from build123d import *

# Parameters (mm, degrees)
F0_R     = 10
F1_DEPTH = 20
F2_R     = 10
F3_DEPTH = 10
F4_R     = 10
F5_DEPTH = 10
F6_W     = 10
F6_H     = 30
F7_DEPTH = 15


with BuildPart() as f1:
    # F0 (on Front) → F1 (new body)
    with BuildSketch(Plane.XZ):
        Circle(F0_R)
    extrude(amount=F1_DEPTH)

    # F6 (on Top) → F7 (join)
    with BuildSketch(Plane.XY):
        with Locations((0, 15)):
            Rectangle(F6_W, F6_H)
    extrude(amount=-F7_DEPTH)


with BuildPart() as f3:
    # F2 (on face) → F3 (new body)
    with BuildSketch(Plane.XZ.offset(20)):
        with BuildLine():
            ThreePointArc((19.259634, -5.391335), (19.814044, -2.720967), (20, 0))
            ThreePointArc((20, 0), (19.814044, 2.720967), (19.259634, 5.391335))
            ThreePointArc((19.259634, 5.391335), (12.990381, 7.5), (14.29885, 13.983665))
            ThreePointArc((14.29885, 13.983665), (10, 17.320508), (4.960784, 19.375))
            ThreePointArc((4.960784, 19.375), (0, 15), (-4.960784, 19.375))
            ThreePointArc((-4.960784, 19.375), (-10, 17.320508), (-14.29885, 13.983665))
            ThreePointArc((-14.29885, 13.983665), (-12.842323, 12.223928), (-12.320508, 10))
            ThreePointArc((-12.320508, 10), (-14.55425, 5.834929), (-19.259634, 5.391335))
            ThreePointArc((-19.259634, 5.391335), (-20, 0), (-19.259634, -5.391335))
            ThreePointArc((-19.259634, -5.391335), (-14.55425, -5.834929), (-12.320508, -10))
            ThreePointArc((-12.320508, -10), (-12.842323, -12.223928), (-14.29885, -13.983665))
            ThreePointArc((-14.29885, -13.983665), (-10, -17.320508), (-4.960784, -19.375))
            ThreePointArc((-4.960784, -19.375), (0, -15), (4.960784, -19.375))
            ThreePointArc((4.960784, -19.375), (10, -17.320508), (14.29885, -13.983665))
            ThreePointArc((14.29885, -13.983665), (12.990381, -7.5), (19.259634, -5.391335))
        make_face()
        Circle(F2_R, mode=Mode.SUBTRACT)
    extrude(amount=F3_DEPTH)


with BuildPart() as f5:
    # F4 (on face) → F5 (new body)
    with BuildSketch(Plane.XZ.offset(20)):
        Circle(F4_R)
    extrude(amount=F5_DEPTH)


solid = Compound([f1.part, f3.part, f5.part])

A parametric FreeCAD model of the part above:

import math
import FreeCAD as App
import Part
import Sketcher

V = App.Vector
Q = App.Units.Quantity


def add_polygon(sketch, points):
    """Adds a closed chain of lines whose ends are joined by coincident constraints."""
    first, n = sketch.GeometryCount, len(points)
    for a, b in zip(points, points[1:] + points[:1]):
        sketch.addGeometry(Part.LineSegment(App.Vector(*a, 0), App.Vector(*b, 0)), False)
    for i in range(n):
        sketch.addConstraint(Sketcher.Constraint("Coincident", first + i, 2, first + (i + 1) % n, 1))

doc = App.newDocument("Part")
params = doc.addObject("Spreadsheet::Sheet", "Params")
for row, (alias, value) in enumerate([
    ("sketch1_diameter", "20 mm"),
    ("pad1_length", "20 mm"),
    ("sketch2_width", "10 mm"),
    ("sketch2_height", "30 mm"),
    ("pad2_length", "15 mm"),
    ("sketch3_diameter", "20 mm"),
    ("sketch3_radius", "5 mm"),
    ("pad3_length", "10 mm"),
    ("sketch4_diameter", "20 mm"),
    ("pad4_length", "10 mm"),
], start=1):
    params.set(f"A{row}", alias)
    params.set(f"B{row}", "=" + value)
    params.setAlias(f"B{row}", alias)

body = doc.addObject("PartDesign::Body", "Body")

sketch1 = body.newObject("Sketcher::SketchObject", "Sketch")
sketch1.AttachmentSupport = (doc.getObject("XZ_Plane"), [""])
sketch1.MapMode = "FlatFace"
sketch1.addGeometry(Part.Circle(V(0, 0, 0), V(0, 0, 1), 10), False)
sketch1.addConstraint(Sketcher.Constraint("Coincident", 0, 3, -1, 1))
sketch1.addConstraint(Sketcher.Constraint("Diameter", 0, Q("20 mm")))
sketch1.setExpression("Constraints[1]", "Params.sketch1_diameter")
pad1 = body.newObject("PartDesign::Pad", "Pad")
pad1.Profile = sketch1
pad1.setExpression("Length", "Params.pad1_length")

sketch2 = body.newObject("Sketcher::SketchObject", "Sketch001")
sketch2.AttachmentSupport = (doc.getObject("XY_Plane"), [""])
sketch2.MapMode = "FlatFace"
add_polygon(sketch2, [(-5, 30), (-5, 0), (5, 0), (5, 30)])
sketch2.addConstraint(Sketcher.Constraint("Vertical", 0))
sketch2.addConstraint(Sketcher.Constraint("Horizontal", 1))
sketch2.addConstraint(Sketcher.Constraint("Vertical", 2))
sketch2.addConstraint(Sketcher.Constraint("Horizontal", 3))
sketch2.addConstraint(Sketcher.Constraint("Symmetric", 0, 2, 1, 2, -1, 1))
sketch2.addConstraint(Sketcher.Constraint("DistanceX", 1, 1, 1, 2, Q("10 mm")))
sketch2.addConstraint(Sketcher.Constraint("DistanceY", 0, 2, 0, 1, Q("30 mm")))
sketch2.setExpression("Constraints[9]", "Params.sketch2_width")
sketch2.setExpression("Constraints[10]", "Params.sketch2_height")
pad2 = body.newObject("PartDesign::Pad", "Pad001")
pad2.Profile = sketch2
pad2.setExpression("Length", "Params.pad2_length")
pad2.Reversed = True
body2 = doc.addObject("PartDesign::Body", "Body001")

sketch3 = body2.newObject("Sketcher::SketchObject", "Sketch002")
sketch3.AttachmentSupport = (doc.getObject("XZ_Plane001"), [""])
sketch3.MapMode = "FlatFace"
sketch3.AttachmentOffset = App.Placement(V(0, 0, 20), App.Rotation())
sketch3.addGeometry(Part.ArcOfCircle(Part.Circle(V(0, 0, 0), V(0, 0, 1), 20), math.radians(-15.64), math.radians(0)), False)
sketch3.addGeometry(Part.ArcOfCircle(Part.Circle(V(0, 0, 0), V(0, 0, 1), 20), math.radians(0), math.radians(15.64)), False)
sketch3.addGeometry(Part.ArcOfCircle(Part.Circle(V(17.3, 10, 0), V(0, 0, 1), 5), math.radians(127), math.radians(293)), False)
sketch3.addGeometry(Part.ArcOfCircle(Part.Circle(V(0, 0, 0), V(0, 0, 1), 20), math.radians(44), math.radians(76)), False)
sketch3.addGeometry(Part.ArcOfCircle(Part.Circle(V(0, 20, 0), V(0, 0, 1), 5), math.radians(-173), math.radians(-7)), False)
sketch3.addGeometry(Part.ArcOfCircle(Part.Circle(V(0, 0, 0), V(0, 0, 1), 20), math.radians(104), math.radians(136)), False)
sketch3.addGeometry(Part.ArcOfCircle(Part.Circle(V(-17.3, 10, 0), V(0, 0, 1), 5), math.radians(0), math.radians(53)), False)
sketch3.addGeometry(Part.ArcOfCircle(Part.Circle(V(-17.3, 10, 0), V(0, 0, 1), 5), math.radians(-113), math.radians(0)), False)
sketch3.addGeometry(Part.ArcOfCircle(Part.Circle(V(0, 0, 0), V(0, 0, 1), 20), math.radians(164), math.radians(196)), False)
sketch3.addGeometry(Part.ArcOfCircle(Part.Circle(V(-17.3, -10, 0), V(0, 0, 1), 5), math.radians(0), math.radians(113)), False)
sketch3.addGeometry(Part.ArcOfCircle(Part.Circle(V(-17.3, -10, 0), V(0, 0, 1), 5), math.radians(-53), math.radians(0)), False)
sketch3.addGeometry(Part.ArcOfCircle(Part.Circle(V(0, 0, 0), V(0, 0, 1), 20), math.radians(-136), math.radians(-104)), False)
sketch3.addGeometry(Part.ArcOfCircle(Part.Circle(V(0, -20, 0), V(0, 0, 1), 5), math.radians(7), math.radians(173)), False)
sketch3.addGeometry(Part.ArcOfCircle(Part.Circle(V(0, 0, 0), V(0, 0, 1), 20), math.radians(-76), math.radians(-44)), False)
sketch3.addGeometry(Part.ArcOfCircle(Part.Circle(V(17.3, -10, 0), V(0, 0, 1), 5), math.radians(67), math.radians(233)), False)
sketch3.addGeometry(Part.Circle(V(0, 0, 0), V(0, 0, 1), 10), False)
sketch3.addConstraint(Sketcher.Constraint("Tangent", 0, 2, 1, 1))
sketch3.addConstraint(Sketcher.Constraint("Coincident", 1, 2, 2, 2))
sketch3.addConstraint(Sketcher.Constraint("Coincident", 2, 1, 3, 1))
sketch3.addConstraint(Sketcher.Constraint("Coincident", 3, 2, 4, 2))
sketch3.addConstraint(Sketcher.Constraint("Coincident", 4, 1, 5, 1))
sketch3.addConstraint(Sketcher.Constraint("Coincident", 5, 2, 6, 2))
sketch3.addConstraint(Sketcher.Constraint("Tangent", 6, 1, 7, 2))
sketch3.addConstraint(Sketcher.Constraint("Coincident", 7, 1, 8, 1))
sketch3.addConstraint(Sketcher.Constraint("Coincident", 8, 2, 9, 2))
sketch3.addConstraint(Sketcher.Constraint("Tangent", 9, 1, 10, 2))
sketch3.addConstraint(Sketcher.Constraint("Coincident", 10, 1, 11, 1))
sketch3.addConstraint(Sketcher.Constraint("Coincident", 11, 2, 12, 2))
sketch3.addConstraint(Sketcher.Constraint("Coincident", 12, 1, 13, 1))
sketch3.addConstraint(Sketcher.Constraint("Coincident", 13, 2, 14, 2))
sketch3.addConstraint(Sketcher.Constraint("Coincident", 14, 1, 0, 1))
sketch3.addConstraint(Sketcher.Constraint("Coincident", 0, 3, -1, 1))
sketch3.addConstraint(Sketcher.Constraint("Coincident", 3, 3, -1, 1))
sketch3.addConstraint(Sketcher.Constraint("Coincident", 5, 3, -1, 1))
sketch3.addConstraint(Sketcher.Constraint("Coincident", 8, 3, -1, 1))
sketch3.addConstraint(Sketcher.Constraint("Coincident", 11, 3, -1, 1))
sketch3.addConstraint(Sketcher.Constraint("Coincident", 13, 3, -1, 1))
sketch3.addConstraint(Sketcher.Constraint("Coincident", 15, 3, -1, 1))
sketch3.addConstraint(Sketcher.Constraint("Equal", 0, 1))
sketch3.addConstraint(Sketcher.Constraint("Equal", 2, 4))
sketch3.addConstraint(Sketcher.Constraint("Equal", 3, 5))
sketch3.addConstraint(Sketcher.Constraint("Equal", 4, 7))
sketch3.addConstraint(Sketcher.Constraint("Equal", 7, 9))
sketch3.addConstraint(Sketcher.Constraint("Equal", 6, 10))
sketch3.addConstraint(Sketcher.Constraint("Equal", 5, 11))
sketch3.addConstraint(Sketcher.Constraint("Equal", 9, 12))
sketch3.addConstraint(Sketcher.Constraint("Equal", 11, 13))
sketch3.addConstraint(Sketcher.Constraint("Equal", 12, 14))
sketch3.addConstraint(Sketcher.Constraint("Symmetric", 2, 3, 9, 3, -1, 1))
sketch3.addConstraint(Sketcher.Constraint("Symmetric", 4, 3, 12, 3, -1, 1))
sketch3.addConstraint(Sketcher.Constraint("Symmetric", 6, 3, 14, 3, -1, 1))
sketch3.addConstraint(Sketcher.Constraint("Symmetric", 7, 1, 14, 1, -1, 1))
sketch3.addConstraint(Sketcher.Constraint("Symmetric", 2, 3, 6, 3, -2))
sketch3.addConstraint(Sketcher.Constraint("PointOnObject", 4, 3, -2))
sketch3.addConstraint(Sketcher.Constraint("PointOnObject", 0, 2, -1))
sketch3.addConstraint(Sketcher.Constraint("Horizontal", 7, 3, 6, 1))
sketch3.addConstraint(Sketcher.Constraint("Horizontal", 14, 3, 9, 1))
sketch3.addConstraint(Sketcher.Constraint("Diameter", 15, Q("20 mm")))
sketch3.addConstraint(Sketcher.Constraint("Radius", 2, Q("5 mm")))
sketch3.addConstraint(Sketcher.Constraint("DistanceY", -1, 1, 2, 3, Q("10 mm")))
sketch3.addConstraint(Sketcher.Constraint("DistanceY", -1, 1, 4, 3, Q("20 mm")))
sketch3.addConstraint(Sketcher.Constraint("DistanceX", -1, 1, 0, 2, Q("20 mm")))
sketch3.addConstraint(Sketcher.Constraint("DistanceY", -1, 1, 3, 2, Q("19.375 mm")))
sketch3.addConstraint(Sketcher.Constraint("DistanceX", 1, 3, 2, 3, Q("17.320499 mm")))
sketch3.setExpression("Constraints[41]", "Params.sketch3_diameter")
sketch3.setExpression("Constraints[42]", "Params.sketch3_radius")
pad3 = body2.newObject("PartDesign::Pad", "Pad002")
pad3.Profile = sketch3
pad3.setExpression("Length", "Params.pad3_length")
body3 = doc.addObject("PartDesign::Body", "Body002")

sketch4 = body3.newObject("Sketcher::SketchObject", "Sketch003")
sketch4.AttachmentSupport = (doc.getObject("XZ_Plane002"), [""])
sketch4.MapMode = "FlatFace"
sketch4.AttachmentOffset = App.Placement(V(0, 0, 20), App.Rotation())
sketch4.addGeometry(Part.Circle(V(0, 0, 0), V(0, 0, 1), 10), False)
sketch4.addConstraint(Sketcher.Constraint("Coincident", 0, 3, -1, 1))
sketch4.addConstraint(Sketcher.Constraint("Diameter", 0, Q("20 mm")))
sketch4.setExpression("Constraints[1]", "Params.sketch4_diameter")
pad4 = body3.newObject("PartDesign::Pad", "Pad003")
pad4.Profile = sketch4
pad4.setExpression("Length", "Params.pad4_length")

doc.recompute()
